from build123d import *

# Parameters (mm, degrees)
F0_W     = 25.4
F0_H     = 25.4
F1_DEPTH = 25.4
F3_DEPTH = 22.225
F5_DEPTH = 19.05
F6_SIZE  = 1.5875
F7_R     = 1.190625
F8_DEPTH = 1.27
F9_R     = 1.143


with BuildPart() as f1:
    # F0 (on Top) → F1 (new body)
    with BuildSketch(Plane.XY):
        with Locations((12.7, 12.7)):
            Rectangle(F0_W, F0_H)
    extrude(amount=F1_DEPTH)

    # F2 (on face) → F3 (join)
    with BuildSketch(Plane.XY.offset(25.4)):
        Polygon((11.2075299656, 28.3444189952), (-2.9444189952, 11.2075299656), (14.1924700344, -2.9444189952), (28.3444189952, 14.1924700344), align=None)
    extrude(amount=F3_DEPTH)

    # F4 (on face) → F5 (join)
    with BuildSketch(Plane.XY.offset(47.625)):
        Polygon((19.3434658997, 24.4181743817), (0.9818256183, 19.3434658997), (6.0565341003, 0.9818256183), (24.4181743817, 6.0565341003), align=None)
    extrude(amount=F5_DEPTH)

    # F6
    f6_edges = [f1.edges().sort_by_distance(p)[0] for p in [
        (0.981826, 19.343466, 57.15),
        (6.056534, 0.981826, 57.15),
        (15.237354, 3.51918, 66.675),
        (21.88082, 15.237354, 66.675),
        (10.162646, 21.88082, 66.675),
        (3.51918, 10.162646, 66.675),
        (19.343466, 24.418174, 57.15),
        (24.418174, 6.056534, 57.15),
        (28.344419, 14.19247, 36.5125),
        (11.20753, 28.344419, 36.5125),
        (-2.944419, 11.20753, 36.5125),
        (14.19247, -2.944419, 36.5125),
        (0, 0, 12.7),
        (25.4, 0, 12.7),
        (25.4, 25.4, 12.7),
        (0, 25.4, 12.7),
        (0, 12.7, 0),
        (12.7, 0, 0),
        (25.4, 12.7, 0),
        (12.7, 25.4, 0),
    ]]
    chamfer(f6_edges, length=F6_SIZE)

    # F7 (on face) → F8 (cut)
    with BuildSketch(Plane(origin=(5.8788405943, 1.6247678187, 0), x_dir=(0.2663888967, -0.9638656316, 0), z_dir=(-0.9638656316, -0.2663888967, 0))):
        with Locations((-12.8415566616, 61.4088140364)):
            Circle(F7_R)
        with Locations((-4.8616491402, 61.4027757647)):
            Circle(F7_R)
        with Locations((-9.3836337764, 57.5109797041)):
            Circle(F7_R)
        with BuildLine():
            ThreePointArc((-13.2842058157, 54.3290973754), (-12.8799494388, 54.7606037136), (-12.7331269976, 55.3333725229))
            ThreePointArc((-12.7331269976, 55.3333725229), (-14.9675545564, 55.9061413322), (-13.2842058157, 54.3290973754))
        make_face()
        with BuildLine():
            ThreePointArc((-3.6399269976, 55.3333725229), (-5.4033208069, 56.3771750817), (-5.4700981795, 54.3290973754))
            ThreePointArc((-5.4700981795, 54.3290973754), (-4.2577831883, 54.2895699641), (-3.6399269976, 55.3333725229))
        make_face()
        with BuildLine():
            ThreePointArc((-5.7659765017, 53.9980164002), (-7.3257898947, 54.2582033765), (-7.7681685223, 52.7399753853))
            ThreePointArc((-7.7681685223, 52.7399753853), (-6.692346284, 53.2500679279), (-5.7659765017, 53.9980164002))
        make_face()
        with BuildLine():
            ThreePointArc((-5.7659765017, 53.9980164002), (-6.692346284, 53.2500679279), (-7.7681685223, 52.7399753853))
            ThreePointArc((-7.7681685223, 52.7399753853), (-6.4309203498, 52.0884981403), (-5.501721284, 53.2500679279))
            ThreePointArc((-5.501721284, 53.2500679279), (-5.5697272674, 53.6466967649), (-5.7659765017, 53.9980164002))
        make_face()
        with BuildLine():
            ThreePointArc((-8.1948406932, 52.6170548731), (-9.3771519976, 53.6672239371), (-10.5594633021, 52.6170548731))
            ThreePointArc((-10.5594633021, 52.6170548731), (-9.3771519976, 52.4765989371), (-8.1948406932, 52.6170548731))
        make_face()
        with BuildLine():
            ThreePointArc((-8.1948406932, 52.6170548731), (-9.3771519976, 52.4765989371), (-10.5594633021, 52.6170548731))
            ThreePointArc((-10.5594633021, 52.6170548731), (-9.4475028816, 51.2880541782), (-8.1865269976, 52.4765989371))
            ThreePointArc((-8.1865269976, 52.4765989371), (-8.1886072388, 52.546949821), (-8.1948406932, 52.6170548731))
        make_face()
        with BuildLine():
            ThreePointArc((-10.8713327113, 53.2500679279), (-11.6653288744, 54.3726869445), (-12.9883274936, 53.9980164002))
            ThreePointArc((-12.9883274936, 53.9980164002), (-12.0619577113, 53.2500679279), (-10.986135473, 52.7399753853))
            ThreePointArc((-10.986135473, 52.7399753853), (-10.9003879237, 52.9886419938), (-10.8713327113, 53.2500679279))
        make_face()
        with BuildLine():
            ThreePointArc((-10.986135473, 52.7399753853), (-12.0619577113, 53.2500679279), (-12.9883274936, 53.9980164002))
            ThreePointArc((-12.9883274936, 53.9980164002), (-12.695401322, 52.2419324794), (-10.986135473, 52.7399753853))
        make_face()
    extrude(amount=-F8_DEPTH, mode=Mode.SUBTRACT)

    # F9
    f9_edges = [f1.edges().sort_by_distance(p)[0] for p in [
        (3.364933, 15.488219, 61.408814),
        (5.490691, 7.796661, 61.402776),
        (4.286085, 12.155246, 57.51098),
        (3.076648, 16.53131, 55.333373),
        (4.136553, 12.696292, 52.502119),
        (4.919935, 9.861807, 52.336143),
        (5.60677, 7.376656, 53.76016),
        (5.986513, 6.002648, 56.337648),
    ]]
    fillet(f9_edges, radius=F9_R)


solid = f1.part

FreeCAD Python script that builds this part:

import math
import FreeCAD as App
import Part
import Sketcher
Q = App.Units.Quantity


def edges_at(feature, points):
    """Names of the edges that pass closest to the given points."""
    edges = feature.Shape.Edges
    near = lambda p: min(range(len(edges)), key=lambda i: edges[i].distToShape(Part.Vertex(*p))[0])
    return sorted({f"Edge{near(p) + 1}" for p in points})


def add_polygon(sketch, points):
    """Adds a closed chain of lines whose ends are joined by coincident constraints."""
    first, n = sketch.GeometryCount, len(points)
    for a, b in zip(points, points[1:] + points[:1]):
        sketch.addGeometry(Part.LineSegment(App.Vector(*a, 0), App.Vector(*b, 0)), False)
    for i in range(n):
        sketch.addConstraint(Sketcher.Constraint("Coincident", first + i, 2, first + (i + 1) % n, 1))

doc = App.newDocument("Part")
body = doc.addObject("PartDesign::Body", "Body")

# Sketch on XY plane
sketch1 = body.newObject("Sketcher::SketchObject", "Sketch")
sketch1.AttachmentSupport = (doc.getObject("XY_Plane"), [""])
sketch1.MapMode = "FlatFace"
add_polygon(sketch1, [(0, 25.4), (0, 0), (25.4, 0), (25.4, 25.4)])  # lines 0-3
sketch1.addConstraint([
    Sketcher.Constraint("Vertical", 0),
    Sketcher.Constraint("Horizontal", 1),
    Sketcher.Constraint("Vertical", 2),
    Sketcher.Constraint("Horizontal", 3),
    Sketcher.Constraint("Coincident", 0, 2, -1, 1),
    Sketcher.Constraint("Equal", 3, 0),
    Sketcher.Constraint("DistanceX", 1, 1, 1, 2, Q("1 in")),
])
pad1 = body.newObject("PartDesign::Pad", "Pad")
pad1.Profile = sketch1
pad1.Length = Q("1 in")

# Sketch on XY plane
sketch2 = body.newObject("Sketcher::SketchObject", "Sketch001")
sketch2.AttachmentSupport = (doc.getObject("XY_Plane"), [""])
sketch2.MapMode = "FlatFace"
sketch2.AttachmentOffset = App.Placement(App.Vector(0, 0, 1 * 25.4), App.Rotation())
add_polygon(sketch2, [(11.20753, 28.344419), (-2.944419, 11.20753), (14.19247, -2.944419), (28.344419, 14.19247)])  # lines 0-3
sketch2.addConstraint([
    Sketcher.Constraint("Perpendicular", 0, 1),
    Sketcher.Constraint("Perpendicular", 1, 2),
    Sketcher.Constraint("Perpendicular", 2, 3),
    Sketcher.Constraint("Equal", 0, 1),
    Sketcher.Constraint("Distance", 0, Q("0.875 in")),
    Sketcher.Constraint("DistanceX", 0, 2, -1, 1, 2.944419),
    Sketcher.Constraint("DistanceY", -1, 1, 0, 2, 11.20753),
    Sketcher.Constraint("DistanceX", -1, 1, 1, 2, 14.19247),
])
pad2 = body.newObject("PartDesign::Pad", "Pad001")
pad2.Profile = sketch2
pad2.Length = Q("0.875 in")

# Sketch on XY plane
sketch3 = body.newObject("Sketcher::SketchObject", "Sketch002")
sketch3.AttachmentSupport = (doc.getObject("XY_Plane"), [""])
sketch3.MapMode = "FlatFace"
sketch3.AttachmentOffset = App.Placement(App.Vector(0, 0, 1.875 * 25.4), App.Rotation())
add_polygon(sketch3, [(19.343466, 24.418174), (0.981826, 19.343466), (6.056534, 0.981826), (24.418174, 6.056534)])  # lines 0-3
sketch3.addConstraint([
    Sketcher.Constraint("Perpendicular", 0, 1),
    Sketcher.Constraint("Perpendicular", 1, 2),
    Sketcher.Constraint("Perpendicular", 2, 3),
    Sketcher.Constraint("Equal", 0, 1),
    Sketcher.Constraint("Distance", 0, Q("0.75 in")),
    Sketcher.Constraint("DistanceX", 0, 2, 1, 2, 5.074708),
    Sketcher.Constraint("DistanceX", -1, 1, 0, 2, 0.981826),
    Sketcher.Constraint("DistanceY", -1, 1, 0, 2, 19.343466),
])
pad3 = body.newObject("PartDesign::Pad", "Pad002")
pad3.Profile = sketch3
pad3.Length = Q("0.75 in")
doc.recompute()

chamfer = body.newObject("PartDesign::Chamfer", "Chamfer")
chamfer.Base = (pad3, edges_at(pad3, [
    (0.982, 19.343, 57.15),
    (6.057, 0.982, 57.15),
    (15.237, 3.519, 66.675),
    (21.881, 15.237, 66.675),
    (10.163, 21.881, 66.675),
    (3.519, 10.163, 66.675),
    (19.343, 24.418, 57.15),
    (24.418, 6.057, 57.15),
    (28.344, 14.192, 36.513),
    (11.208, 28.344, 36.513),
    (-2.944, 11.208, 36.513),
    (14.192, -2.944, 36.513),
    (0, 0, 12.7),
    (25.4, 0, 12.7),
    (25.4, 25.4, 12.7),
    (0, 25.4, 12.7),
    (0, 12.7, 0),
    (12.7, 0, 0),
    (25.4, 12.7, 0),
    (12.7, 25.4, 0),
]))
chamfer.Size = Q("0.0625 in")

# Sketch on an angled plane
sketch4 = body.newObject("Sketcher::SketchObject", "Sketch003")
sketch4.Placement = App.Placement(App.Vector(5.878841, 1.624768, 0), App.Rotation(App.Vector(0.266388897, -0.963865632, 0), App.Vector(0, 0, 1.000000001), App.Vector(-0.963865632, -0.266388897, 0), "ZXY"))
sketch4.addGeometry([
    Part.Circle(App.Vector(-12.841557, 61.408814, 0), App.Vector(0, 0, 1), 1.190625),  # 0
    Part.Circle(App.Vector(-4.861649, 61.402776, 0), App.Vector(0, 0, 1), 1.190625),  # 1
    Part.Circle(App.Vector(-9.383634, 57.51098, 0), App.Vector(0, 0, 1), 1.190625),  # 2
    Part.ArcOfCircle(Part.Circle(App.Vector(-13.923752, 55.333373, 0), App.Vector(0, 0, 1), 1.190625), math.radians(-57.510051), math.radians(0)),  # 3
    Part.ArcOfCircle(Part.Circle(App.Vector(-13.923752, 55.333373, 0), App.Vector(0, 0, 1), 1.190625), math.radians(0), math.radians(302.489949)),  # 4
    Part.ArcOfCircle(Part.Circle(App.Vector(-4.830552, 55.333373, 0), App.Vector(0, 0, 1), 1.190625), math.radians(0), math.radians(237.510051)),  # 5
    Part.ArcOfCircle(Part.Circle(App.Vector(-4.830552, 55.333373, 0), App.Vector(0, 0, 1), 1.190625), math.radians(-122.489949), math.radians(0)),  # 6
    Part.ArcOfCircle(Part.Circle(App.Vector(-6.692346, 53.250068, 0), App.Vector(0, 0, 1), 1.190625), math.radians(38.917313), math.radians(205.367596)),  # 7
    Part.ArcOfCircle(Part.Circle(App.Vector(-6.692346, 53.250068, 0), App.Vector(0, 0, 1), 1.190625), math.radians(-154.632404), math.radians(0)),  # 8
    Part.ArcOfCircle(Part.Circle(App.Vector(-6.692346, 53.250068, 0), App.Vector(0, 0, 1), 1.190625), math.radians(0), math.radians(38.917313)),  # 9
    Part.ArcOfCircle(Part.Circle(App.Vector(-9.377152, 52.476599, 0), App.Vector(0, 0, 1), 1.190625), math.radians(6.774858), math.radians(173.225142)),  # 10
    Part.ArcOfCircle(Part.Circle(App.Vector(-9.377152, 52.476599, 0), App.Vector(0, 0, 1), 1.190625), math.radians(173.225142), math.radians(360)),  # 11
    Part.ArcOfCircle(Part.Circle(App.Vector(-9.377152, 52.476599, 0), App.Vector(0, 0, 1), 1.190625), math.radians(0), math.radians(6.774858)),  # 12
    Part.ArcOfCircle(Part.Circle(App.Vector(-12.061958, 53.250068, 0), App.Vector(0, 0, 1), 1.190625), math.radians(0), math.radians(141.082687)),  # 13
    Part.ArcOfCircle(Part.Circle(App.Vector(-12.061958, 53.250068, 0), App.Vector(0, 0, 1), 1.190625), math.radians(141.082687), math.radians(334.632404)),  # 14
    Part.ArcOfCircle(Part.Circle(App.Vector(-12.061958, 53.250068, 0), App.Vector(0, 0, 1), 1.190625), math.radians(-25.367596), math.radians(0)),  # 15
], False)
sketch4.addConstraint([
    Sketcher.Constraint("Tangent", 3, 1, 4, 2),
    Sketcher.Constraint("Coincident", 4, 1, 3, 2),
    Sketcher.Constraint("Tangent", 5, 1, 6, 2),
    Sketcher.Constraint("Coincident", 6, 1, 5, 2),
    Sketcher.Constraint("Tangent", 7, 2, 8, 1),
    Sketcher.Constraint("Tangent", 8, 2, 9, 1),
    Sketcher.Constraint("Tangent", 9, 2, 7, 1),
    Sketcher.Constraint("Tangent", 10, 2, 11, 1),
    Sketcher.Constraint("Tangent", 11, 2, 12, 1),
    Sketcher.Constraint("Tangent", 12, 2, 10, 1),
    Sketcher.Constraint("Tangent", 13, 2, 14, 1),
    Sketcher.Constraint("Tangent", 14, 2, 15, 1),
    Sketcher.Constraint("Tangent", 15, 2, 13, 1),
    Sketcher.Constraint("Equal", 0, 1),
    Sketcher.Constraint("Equal", 1, 2),
    Sketcher.Constraint("Equal", 2, 3),
    Sketcher.Constraint("Equal", 4, 5),
    Sketcher.Constraint("Equal", 6, 7),
    Sketcher.Constraint("Equal", 9, 10),
    Sketcher.Constraint("Equal", 12, 13),
    Sketcher.Constraint("Horizontal", 4, 3, 5, 3),
    Sketcher.Constraint("Horizontal", 9, 3, 13, 3),
    Sketcher.Constraint("Horizontal", 6, 3, 4, 1),
    Sketcher.Constraint("Horizontal", 4, 1, 5, 1),
    Sketcher.Constraint("Horizontal", 3, 1, 6, 1),
    Sketcher.Constraint("Horizontal", 15, 3, 8, 2),
    Sketcher.Constraint("Horizontal", 12, 3, 11, 2),
    Sketcher.Constraint("Horizontal", 10, 2, 12, 2),
    Sketcher.Constraint("Horizontal", 9, 2, 13, 2),
    Sketcher.Constraint("Horizontal", 7, 2, 14, 2),
    Sketcher.Constraint("Horizontal", 8, 2, 15, 2),
    Sketcher.Constraint("Diameter", 0, Q("0.09375 in")),
    Sketcher.Constraint("DistanceX", 3, 3, 5, 3, Q("0.358 in")),
    Sketcher.Constraint("DistanceX", 10, 3, 5, 3, Q("0.179 in")),
    Sketcher.Constraint("DistanceY", -1, 1, 10, 3, 52.476599),
    Sketcher.Constraint("DistanceX", 6, 1, -1, 1, 5.470098),
    Sketcher.Constraint("DistanceX", 13, 2, 4, 1, 0.2552),
    Sketcher.Constraint("DistanceX", 1, 3, -1, 1, 4.861649),
    Sketcher.Constraint("DistanceY", -1, 1, 2, 3, 57.51098),
    Sketcher.Constraint("DistanceY", -1, 1, 7, 3, 53.250068),
    Sketcher.Constraint("DistanceX", 7, 2, -1, 1, 7.768169),
    Sketcher.Constraint("DistanceX", 8, 2, -1, 1, 5.501721),
    Sketcher.Constraint("DistanceX", 12, 2, -1, 1, 8.194841),
    Sketcher.Constraint("DistanceY", 1, 3, 0, 3, 0.006038),
    Sketcher.Constraint("DistanceX", 3, 3, 2, 3, 4.540118),
    Sketcher.Constraint("DistanceY", 3, 3, 0, 3, 6.075442),
    Sketcher.Constraint("DistanceX", 3, 1, 15, 3, 1.222248),
    Sketcher.Constraint("DistanceY", 15, 3, 3, 1, 1.079029),
    Sketcher.Constraint("DistanceX", 3, 1, 4, 1, 0.551079),
    Sketcher.Constraint("DistanceX", 0, 3, -1, 1, 12.841557),
])
pocket1 = body.newObject("PartDesign::Pocket", "Pocket")
pocket1.Profile = sketch4
pocket1.Length = Q("0.05 in")
doc.recompute()

fillet = body.newObject("PartDesign::Fillet", "Fillet")
fillet.Base = (pocket1, edges_at(pocket1, [
    (3.365, 15.488, 61.409),
    (5.491, 7.797, 61.403),
    (4.286, 12.155, 57.511),
    (3.116, 16.39, 55.906),
    (3.721, 14.2, 52.242),
    (4.586, 11.069, 51.288),
    (5.619, 7.332, 53.647),
    (5.664, 7.171, 56.377),
]))
fillet.Radius = Q("0.045 in")

doc.recompute()
